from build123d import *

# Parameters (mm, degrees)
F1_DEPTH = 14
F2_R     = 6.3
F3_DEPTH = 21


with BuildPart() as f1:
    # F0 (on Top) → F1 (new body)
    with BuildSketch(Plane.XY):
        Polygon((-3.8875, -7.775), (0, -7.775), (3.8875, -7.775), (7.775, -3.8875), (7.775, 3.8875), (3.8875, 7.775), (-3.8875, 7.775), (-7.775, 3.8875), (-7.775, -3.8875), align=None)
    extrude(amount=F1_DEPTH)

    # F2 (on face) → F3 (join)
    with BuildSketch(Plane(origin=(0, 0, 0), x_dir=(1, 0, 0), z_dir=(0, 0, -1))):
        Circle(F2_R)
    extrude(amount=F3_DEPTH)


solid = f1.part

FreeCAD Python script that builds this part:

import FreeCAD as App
import Part
import Sketcher

V = App.Vector
Q = App.Units.Quantity


def add_polygon(sketch, points):
    """Adds a closed chain of lines whose ends are joined by coincident constraints."""
    first, n = sketch.GeometryCount, len(points)
    for a, b in zip(points, points[1:] + points[:1]):
        sketch.addGeometry(Part.LineSegment(App.Vector(*a, 0), App.Vector(*b, 0)), False)
    for i in range(n):
        sketch.addConstraint(Sketcher.Constraint("Coincident", first + i, 2, first + (i + 1) % n, 1))

doc = App.newDocument("Part")
params = doc.addObject("Spreadsheet::Sheet", "Params")
for row, (alias, value) in enumerate([
    ("pad1_length", "14 mm"),
    ("sketch2_diameter", "12.6 mm"),
    ("pad2_length", "21 mm"),
], start=1):
    params.set(f"A{row}", alias)
    params.set(f"B{row}", "=" + value)
    params.setAlias(f"B{row}", alias)

body = doc.addObject("PartDesign::Body", "Body")

sketch1 = doc.addObject("Sketcher::SketchObject", "Sketch")
body.addObject(sketch1)
sketch1.AttachmentSupport = (doc.XY_Plane, [""])
sketch1.MapMode = "FlatFace"
add_polygon(sketch1, [(-4, -8), (4, -8), (8, -4), (8, 4), (4, 8), (-4, 8), (-8, 4), (-8, -4)])
sketch1.addConstraint([
    Sketcher.Constraint("Horizontal", 0),
    Sketcher.Constraint("Vertical", 2),
    Sketcher.Constraint("Horizontal", 4),
    Sketcher.Constraint("Vertical", 6),
    Sketcher.Constraint("Symmetric", 0, 2, 4, 2, -1, 1),
    Sketcher.Constraint("Symmetric", 1, 2, 5, 2, -1, 1),
    Sketcher.Constraint("Perpendicular", 1, 3),
    Sketcher.Constraint("Perpendicular", 5, 7),
    Sketcher.Constraint("Horizontal", 2, 2, 5, 2),
    Sketcher.Constraint("Horizontal", 1, 2, 6, 2),
    Sketcher.Constraint("Vertical", 0, 2, 3, 2),
    Sketcher.Constraint("Equal", 4, 2),
    Sketcher.Constraint("DistanceX", 0, 1, 0, 2, Q("7.775 mm")),
    Sketcher.Constraint("DistanceY", 0, 2, 3, 2, Q("15.55 mm")),
])
pad1 = doc.addObject("PartDesign::Pad", "Pad")
body.addObject(pad1)
pad1.Profile = sketch1
pad1.setExpression("Length", "Params.pad1_length")

sketch2 = doc.addObject("Sketcher::SketchObject", "Sketch001")
body.addObject(sketch2)
sketch2.AttachmentSupport = (doc.XY_Plane, [""])
sketch2.MapMode = "FlatFace"
sketch2.addGeometry(Part.Circle(V(0, 0, 0), V(0, 0, 1), 6), False)
sketch2.addConstraint([
    Sketcher.Constraint("Coincident", 0, 3, -1, 1),
    Sketcher.Constraint("Diameter", 0, Q("12.6 mm")),
])
sketch2.setExpression("Constraints[1]", "Params.sketch2_diameter")
pad2 = doc.addObject("PartDesign::Pad", "Pad001")
body.addObject(pad2)
pad2.Profile = sketch2
pad2.setExpression("Length", "Params.pad2_length")
pad2.Reversed = True

doc.recompute()
